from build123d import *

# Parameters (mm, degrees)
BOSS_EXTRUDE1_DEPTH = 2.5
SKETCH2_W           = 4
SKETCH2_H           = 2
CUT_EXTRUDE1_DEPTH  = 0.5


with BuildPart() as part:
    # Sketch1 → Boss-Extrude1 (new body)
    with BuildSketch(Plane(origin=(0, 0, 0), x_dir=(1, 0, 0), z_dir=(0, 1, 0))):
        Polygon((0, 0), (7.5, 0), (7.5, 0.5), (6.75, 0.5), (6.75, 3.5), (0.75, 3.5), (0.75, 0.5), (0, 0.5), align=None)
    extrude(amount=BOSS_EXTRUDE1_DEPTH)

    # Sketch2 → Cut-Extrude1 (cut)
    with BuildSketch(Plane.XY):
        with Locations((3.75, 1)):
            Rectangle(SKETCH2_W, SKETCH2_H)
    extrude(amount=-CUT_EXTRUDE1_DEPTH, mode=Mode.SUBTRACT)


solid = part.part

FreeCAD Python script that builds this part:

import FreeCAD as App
import Part
import Sketcher

V = App.Vector

doc = App.newDocument("Part")
body = doc.addObject("PartDesign::Body", "Body")

sketch1 = doc.addObject("Sketcher::SketchObject", "Sketch")
body.addObject(sketch1)
sketch1.AttachmentSupport = (doc.XZ_Plane, [""])
sketch1.MapMode = "FlatFace"
sketch1.addGeometry([
    Part.LineSegment(V(0, 0, 0), V(7.5, 0, 0)),
    Part.LineSegment(V(7.5, 0, 0), V(7.5, -0.5, 0)),
    Part.LineSegment(V(7.5, -0.5, 0), V(6.8, -0.5, 0)),
    Part.LineSegment(V(6.8, -0.5, 0), V(6.8, -3.5, 0)),
    Part.LineSegment(V(6.8, -3.5, 0), V(0.8, -3.5, 0)),
    Part.LineSegment(V(0.8, -3.5, 0), V(0.8, -0.5, 0)),
    Part.LineSegment(V(0.8, -0.5, 0), V(0, -0.5, 0)),
    Part.LineSegment(V(0, -0.5, 0), V(0, 0, 0)),
], False)
sketch1.addConstraint([
    Sketcher.Constraint("Coincident", 0, 2, 1, 1),
    Sketcher.Constraint("Coincident", 1, 2, 2, 1),
    Sketcher.Constraint("Coincident", 2, 2, 3, 1),
    Sketcher.Constraint("Coincident", 3, 2, 4, 1),
    Sketcher.Constraint("Coincident", 4, 2, 5, 1),
    Sketcher.Constraint("Coincident", 5, 2, 6, 1),
    Sketcher.Constraint("Coincident", 6, 2, 7, 1),
    Sketcher.Constraint("Coincident", 7, 2, 0, 1),
    Sketcher.Constraint("Horizontal", 0),
    Sketcher.Constraint("Vertical", 1),
    Sketcher.Constraint("Horizontal", 2),
    Sketcher.Constraint("Vertical", 3),
    Sketcher.Constraint("Horizontal", 4),
    Sketcher.Constraint("Vertical", 5),
    Sketcher.Constraint("Horizontal", 6),
    Sketcher.Constraint("Vertical", 7),
    Sketcher.Constraint("Coincident", 7, 2, -1, 1),
    Sketcher.Constraint("Horizontal", 2, 2, 5, 2),
    Sketcher.Constraint("Equal", 2, 6),
    Sketcher.Constraint("DistanceX", 4, 2, 4, 1, 6.0),
    Sketcher.Constraint("DistanceY", 3, 2, 3, 1, 3.0),
    Sketcher.Constraint("DistanceX", 0, 1, 0, 2, 7.5),
    Sketcher.Constraint("DistanceY", 1, 2, 1, 1, 0.5),
])
pad1 = doc.addObject("PartDesign::Pad", "Pad")
body.addObject(pad1)
pad1.Profile = sketch1
pad1.Length = 2.5
pad1.Reversed = True

sketch2 = doc.addObject("Sketcher::SketchObject", "Sketch001")
body.addObject(sketch2)
sketch2.AttachmentSupport = (doc.XY_Plane, [""])
sketch2.MapMode = "FlatFace"
sketch2.addGeometry([
    Part.LineSegment(V(1.8, 2, 0), V(1.8, 0, 0)),
    Part.LineSegment(V(1.8, 0, 0), V(5.8, 0, 0)),
    Part.LineSegment(V(5.8, 0, 0), V(5.8, 2, 0)),
    Part.LineSegment(V(5.8, 2, 0), V(1.8, 2, 0)),
], False)
sketch2.addConstraint([
    Sketcher.Constraint("Coincident", 0, 2, 1, 1),
    Sketcher.Constraint("Coincident", 1, 2, 2, 1),
    Sketcher.Constraint("Coincident", 2, 2, 3, 1),
    Sketcher.Constraint("Coincident", 3, 2, 0, 1),
    Sketcher.Constraint("Vertical", 0),
    Sketcher.Constraint("Horizontal", 1),
    Sketcher.Constraint("Vertical", 2),
    Sketcher.Constraint("Horizontal", 3),
    Sketcher.Constraint("PointOnObject", 0, 2, -1),
    Sketcher.Constraint("DistanceX", 1, 1, 1, 2, 4.0),
    Sketcher.Constraint("DistanceY", 0, 2, 0, 1, 2.0),
    Sketcher.Constraint("DistanceX", -1, 1, 0, 2, 1.75),
])
pocket1 = doc.addObject("PartDesign::Pocket", "Pocket")
body.addObject(pocket1)
pocket1.Profile = sketch2
pocket1.Length = 0.5

doc.recompute()
